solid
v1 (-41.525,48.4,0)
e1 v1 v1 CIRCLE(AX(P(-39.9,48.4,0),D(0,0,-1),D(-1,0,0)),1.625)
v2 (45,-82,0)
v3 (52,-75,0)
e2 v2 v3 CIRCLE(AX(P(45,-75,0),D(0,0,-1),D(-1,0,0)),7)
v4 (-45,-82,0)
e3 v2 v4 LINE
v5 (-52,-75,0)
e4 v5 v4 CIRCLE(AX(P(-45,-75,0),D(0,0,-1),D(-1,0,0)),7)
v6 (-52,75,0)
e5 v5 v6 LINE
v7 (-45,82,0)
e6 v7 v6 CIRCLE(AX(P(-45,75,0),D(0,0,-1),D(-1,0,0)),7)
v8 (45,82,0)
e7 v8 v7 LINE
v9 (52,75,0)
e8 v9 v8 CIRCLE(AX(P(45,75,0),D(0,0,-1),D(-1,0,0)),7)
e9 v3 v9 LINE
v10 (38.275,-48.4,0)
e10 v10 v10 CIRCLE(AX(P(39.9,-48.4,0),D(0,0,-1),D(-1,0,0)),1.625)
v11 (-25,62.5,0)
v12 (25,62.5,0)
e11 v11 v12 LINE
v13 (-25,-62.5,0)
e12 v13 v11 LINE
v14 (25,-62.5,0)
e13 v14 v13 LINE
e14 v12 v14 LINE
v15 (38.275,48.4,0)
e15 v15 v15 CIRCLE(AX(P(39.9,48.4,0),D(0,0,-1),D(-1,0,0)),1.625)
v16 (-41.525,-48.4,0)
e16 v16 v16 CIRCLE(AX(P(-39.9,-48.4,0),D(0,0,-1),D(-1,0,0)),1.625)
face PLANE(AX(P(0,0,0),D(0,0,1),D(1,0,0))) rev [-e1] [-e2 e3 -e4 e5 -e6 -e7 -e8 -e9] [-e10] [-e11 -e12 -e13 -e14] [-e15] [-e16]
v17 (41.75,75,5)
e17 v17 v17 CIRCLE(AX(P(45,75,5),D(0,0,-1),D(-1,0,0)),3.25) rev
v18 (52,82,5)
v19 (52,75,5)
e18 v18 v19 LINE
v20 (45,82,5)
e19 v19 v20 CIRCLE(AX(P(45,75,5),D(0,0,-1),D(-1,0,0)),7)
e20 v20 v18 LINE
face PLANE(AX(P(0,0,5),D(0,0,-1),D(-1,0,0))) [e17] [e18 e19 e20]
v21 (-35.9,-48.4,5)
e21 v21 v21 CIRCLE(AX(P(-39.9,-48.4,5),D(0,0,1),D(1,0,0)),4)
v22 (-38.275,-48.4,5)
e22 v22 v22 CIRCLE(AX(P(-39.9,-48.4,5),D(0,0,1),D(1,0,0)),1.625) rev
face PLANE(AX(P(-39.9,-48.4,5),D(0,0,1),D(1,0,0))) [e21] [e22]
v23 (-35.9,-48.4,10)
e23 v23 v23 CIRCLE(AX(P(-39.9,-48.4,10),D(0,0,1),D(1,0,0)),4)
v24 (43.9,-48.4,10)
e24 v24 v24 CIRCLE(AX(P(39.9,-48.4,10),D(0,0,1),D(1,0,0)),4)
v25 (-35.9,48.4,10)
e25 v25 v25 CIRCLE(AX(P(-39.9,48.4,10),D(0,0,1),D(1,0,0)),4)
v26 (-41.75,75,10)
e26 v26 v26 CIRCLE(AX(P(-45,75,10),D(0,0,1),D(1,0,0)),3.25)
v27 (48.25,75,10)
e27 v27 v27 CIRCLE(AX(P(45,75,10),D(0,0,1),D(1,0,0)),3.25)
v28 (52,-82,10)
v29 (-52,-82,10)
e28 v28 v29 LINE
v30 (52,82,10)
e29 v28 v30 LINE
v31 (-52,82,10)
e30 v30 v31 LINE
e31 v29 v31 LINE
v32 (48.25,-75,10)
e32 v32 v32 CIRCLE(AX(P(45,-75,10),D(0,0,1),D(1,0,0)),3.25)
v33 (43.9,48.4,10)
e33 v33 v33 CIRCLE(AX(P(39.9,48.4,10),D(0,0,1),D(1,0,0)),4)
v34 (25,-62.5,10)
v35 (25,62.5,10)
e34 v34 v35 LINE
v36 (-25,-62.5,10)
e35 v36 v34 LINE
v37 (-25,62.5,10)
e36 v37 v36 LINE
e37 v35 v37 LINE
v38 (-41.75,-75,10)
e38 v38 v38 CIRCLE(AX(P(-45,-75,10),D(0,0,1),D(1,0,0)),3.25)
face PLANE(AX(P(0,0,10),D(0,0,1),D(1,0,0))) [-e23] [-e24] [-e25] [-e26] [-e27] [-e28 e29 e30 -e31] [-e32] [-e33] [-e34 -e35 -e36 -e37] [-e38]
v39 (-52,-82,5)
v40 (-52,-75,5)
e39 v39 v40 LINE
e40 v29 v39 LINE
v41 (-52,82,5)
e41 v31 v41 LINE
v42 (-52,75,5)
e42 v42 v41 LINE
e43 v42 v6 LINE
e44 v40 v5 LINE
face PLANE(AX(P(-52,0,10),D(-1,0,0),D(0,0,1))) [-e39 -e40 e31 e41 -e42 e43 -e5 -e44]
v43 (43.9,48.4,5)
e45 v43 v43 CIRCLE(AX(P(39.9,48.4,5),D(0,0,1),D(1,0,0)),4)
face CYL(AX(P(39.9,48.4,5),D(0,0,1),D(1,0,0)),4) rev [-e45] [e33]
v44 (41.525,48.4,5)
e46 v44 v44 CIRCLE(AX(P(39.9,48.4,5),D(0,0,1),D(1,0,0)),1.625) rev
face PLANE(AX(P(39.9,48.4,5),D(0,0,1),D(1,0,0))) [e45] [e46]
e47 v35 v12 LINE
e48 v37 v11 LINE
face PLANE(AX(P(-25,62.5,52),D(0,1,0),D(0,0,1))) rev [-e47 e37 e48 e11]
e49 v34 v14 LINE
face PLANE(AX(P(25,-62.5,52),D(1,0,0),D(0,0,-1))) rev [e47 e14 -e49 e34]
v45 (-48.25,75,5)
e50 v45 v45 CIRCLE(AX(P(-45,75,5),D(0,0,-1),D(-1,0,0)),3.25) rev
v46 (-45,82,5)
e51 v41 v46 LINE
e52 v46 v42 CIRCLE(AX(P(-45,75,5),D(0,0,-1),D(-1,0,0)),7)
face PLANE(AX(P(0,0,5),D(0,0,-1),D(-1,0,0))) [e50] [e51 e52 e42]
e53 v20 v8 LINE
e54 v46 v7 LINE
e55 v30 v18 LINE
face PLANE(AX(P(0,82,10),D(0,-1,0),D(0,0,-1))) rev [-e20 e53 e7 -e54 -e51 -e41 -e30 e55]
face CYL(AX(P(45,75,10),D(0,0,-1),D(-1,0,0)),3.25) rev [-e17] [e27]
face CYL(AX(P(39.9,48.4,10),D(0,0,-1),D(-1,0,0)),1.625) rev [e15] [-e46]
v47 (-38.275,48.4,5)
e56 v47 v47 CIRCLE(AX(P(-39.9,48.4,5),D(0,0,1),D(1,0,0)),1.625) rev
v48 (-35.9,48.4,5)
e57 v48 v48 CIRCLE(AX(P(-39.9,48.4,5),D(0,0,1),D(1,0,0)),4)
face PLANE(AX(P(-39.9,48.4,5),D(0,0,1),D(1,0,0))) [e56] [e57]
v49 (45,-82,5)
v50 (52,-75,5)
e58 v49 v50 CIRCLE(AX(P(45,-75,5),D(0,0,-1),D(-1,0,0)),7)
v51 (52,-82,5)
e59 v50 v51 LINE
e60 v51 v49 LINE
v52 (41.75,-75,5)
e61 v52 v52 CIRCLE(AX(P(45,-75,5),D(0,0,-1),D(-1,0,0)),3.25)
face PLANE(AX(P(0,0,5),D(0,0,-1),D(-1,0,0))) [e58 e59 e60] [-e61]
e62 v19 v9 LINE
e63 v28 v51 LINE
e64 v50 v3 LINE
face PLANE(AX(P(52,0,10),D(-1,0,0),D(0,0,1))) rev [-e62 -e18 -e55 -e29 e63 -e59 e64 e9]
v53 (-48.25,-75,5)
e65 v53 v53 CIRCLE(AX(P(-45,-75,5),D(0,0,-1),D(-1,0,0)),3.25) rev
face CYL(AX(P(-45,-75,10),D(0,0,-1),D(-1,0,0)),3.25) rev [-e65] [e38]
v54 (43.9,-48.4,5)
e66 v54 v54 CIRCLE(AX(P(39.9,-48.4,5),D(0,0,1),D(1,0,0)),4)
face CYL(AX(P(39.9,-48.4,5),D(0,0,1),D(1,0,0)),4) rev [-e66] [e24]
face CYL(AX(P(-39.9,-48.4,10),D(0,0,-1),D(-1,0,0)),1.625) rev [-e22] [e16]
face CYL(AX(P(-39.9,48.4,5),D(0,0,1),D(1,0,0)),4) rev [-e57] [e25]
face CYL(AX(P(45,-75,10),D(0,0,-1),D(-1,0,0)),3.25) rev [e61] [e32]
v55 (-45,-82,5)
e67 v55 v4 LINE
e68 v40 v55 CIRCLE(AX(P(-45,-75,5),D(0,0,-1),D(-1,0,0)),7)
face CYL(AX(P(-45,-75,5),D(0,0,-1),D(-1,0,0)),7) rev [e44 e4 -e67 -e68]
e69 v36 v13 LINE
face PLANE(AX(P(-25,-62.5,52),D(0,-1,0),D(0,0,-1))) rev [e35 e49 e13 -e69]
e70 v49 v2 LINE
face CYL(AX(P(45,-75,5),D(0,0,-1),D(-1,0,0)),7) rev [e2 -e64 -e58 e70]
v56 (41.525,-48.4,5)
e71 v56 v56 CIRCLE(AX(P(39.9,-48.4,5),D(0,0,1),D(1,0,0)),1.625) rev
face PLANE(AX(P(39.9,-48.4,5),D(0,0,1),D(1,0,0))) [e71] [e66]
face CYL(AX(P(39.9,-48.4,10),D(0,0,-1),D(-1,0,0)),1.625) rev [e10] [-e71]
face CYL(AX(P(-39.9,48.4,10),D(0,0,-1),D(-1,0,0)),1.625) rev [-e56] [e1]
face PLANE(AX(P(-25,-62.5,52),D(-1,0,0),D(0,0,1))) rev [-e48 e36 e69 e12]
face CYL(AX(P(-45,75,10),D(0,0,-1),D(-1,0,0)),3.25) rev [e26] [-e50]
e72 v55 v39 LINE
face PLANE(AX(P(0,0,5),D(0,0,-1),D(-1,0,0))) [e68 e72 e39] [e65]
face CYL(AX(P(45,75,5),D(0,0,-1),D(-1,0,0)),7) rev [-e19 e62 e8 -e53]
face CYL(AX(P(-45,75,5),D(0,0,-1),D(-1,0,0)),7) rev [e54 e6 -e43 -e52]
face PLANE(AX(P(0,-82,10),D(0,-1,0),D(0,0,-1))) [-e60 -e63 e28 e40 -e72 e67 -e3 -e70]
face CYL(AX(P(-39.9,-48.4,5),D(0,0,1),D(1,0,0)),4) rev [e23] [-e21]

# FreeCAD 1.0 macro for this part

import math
import FreeCAD as App
import Part
import Sketcher


def add_polygon(sketch, points):
    """Adds a closed chain of lines whose ends are joined by coincident constraints."""
    first, n = sketch.GeometryCount, len(points)
    for a, b in zip(points, points[1:] + points[:1]):
        sketch.addGeometry(Part.LineSegment(App.Vector(*a, 0), App.Vector(*b, 0)), False)
    for i in range(n):
        sketch.addConstraint(Sketcher.Constraint("Coincident", first + i, 2, first + (i + 1) % n, 1))

doc = App.newDocument("Part")
body = doc.addObject("PartDesign::Body", "Body")

# Sketch on XY plane
sketch1 = body.newObject("Sketcher::SketchObject", "Sketch")
sketch1.AttachmentSupport = (doc.getObject("XY_Plane"), [""])
sketch1.MapMode = "FlatFace"
add_polygon(sketch1, [(-52, 82), (-52, -82), (52, -82), (52, 82)])  # lines 0-3
sketch1.addGeometry(Part.Circle(App.Vector(-45, -75, 0), App.Vector(0, 0, 1), 3.2), False)  # 4
sketch1.addGeometry(Part.Circle(App.Vector(45, -75, 0), App.Vector(0, 0, 1), 3.2), False)  # 5
sketch1.addGeometry(Part.Circle(App.Vector(-45, 75, 0), App.Vector(0, 0, 1), 3.2), False)  # 6
sketch1.addGeometry(Part.Circle(App.Vector(45, 75, 0), App.Vector(0, 0, 1), 3.2), False)  # 7
sketch1.addConstraint(Sketcher.Constraint("Vertical", 0))
sketch1.addConstraint(Sketcher.Constraint("Horizontal", 1))
sketch1.addConstraint(Sketcher.Constraint("Vertical", 2))
sketch1.addConstraint(Sketcher.Constraint("Horizontal", 3))
sketch1.addConstraint(Sketcher.Constraint("Equal", 4, 5))
sketch1.addConstraint(Sketcher.Constraint("Equal", 5, 6))
sketch1.addConstraint(Sketcher.Constraint("Equal", 6, 7))
sketch1.addConstraint(Sketcher.Constraint("Symmetric", 5, 3, 6, 3, -1, 1))
sketch1.addConstraint(Sketcher.Constraint("Symmetric", 4, 3, 7, 3, -1, 1))
sketch1.addConstraint(Sketcher.Constraint("Symmetric", 0, 2, 2, 2, -1, 1))
sketch1.addConstraint(Sketcher.Constraint("Symmetric", 4, 3, 5, 3, -2))
sketch1.addConstraint(Sketcher.Constraint("Diameter", 4, 6.5))
sketch1.addConstraint(Sketcher.Constraint("DistanceX", 1, 1, 1, 2, 104.0))
sketch1.addConstraint(Sketcher.Constraint("DistanceY", 0, 2, 0, 1, 164.0))
sketch1.addConstraint(Sketcher.Constraint("DistanceX", 4, 3, -1, 1, 45.0))
sketch1.addConstraint(Sketcher.Constraint("DistanceY", 4, 3, -1, 1, 75.0))
pad1 = body.newObject("PartDesign::Pad", "Pad")
pad1.Profile = sketch1
pad1.Length = 10

# Sketch on XY plane
sketch2 = body.newObject("Sketcher::SketchObject", "Sketch001")
sketch2.AttachmentSupport = (doc.getObject("XY_Plane"), [""])
sketch2.MapMode = "FlatFace"
sketch2.addGeometry(Part.Circle(App.Vector(39.9, 48.4, 0), App.Vector(0, 0, 1), 1.6), False)
sketch2.addGeometry(Part.Circle(App.Vector(-39.9, 48.4, 0), App.Vector(0, 0, 1), 1.6), False)
sketch2.addGeometry(Part.Circle(App.Vector(39.9, -48.4, 0), App.Vector(0, 0, 1), 1.6), False)
sketch2.addGeometry(Part.Circle(App.Vector(-39.9, -48.4, 0), App.Vector(0, 0, 1), 1.6), False)
sketch2.addConstraint(Sketcher.Constraint("Equal", 0, 1))
sketch2.addConstraint(Sketcher.Constraint("Equal", 1, 2))
sketch2.addConstraint(Sketcher.Constraint("Equal", 2, 3))
sketch2.addConstraint(Sketcher.Constraint("Symmetric", 1, 3, 2, 3, -1, 1))
sketch2.addConstraint(Sketcher.Constraint("Symmetric", 0, 3, 3, 3, -1, 1))
sketch2.addConstraint(Sketcher.Constraint("Symmetric", 0, 3, 1, 3, -2))
sketch2.addConstraint(Sketcher.Constraint("Diameter", 0, 3.25))
sketch2.addConstraint(Sketcher.Constraint("DistanceX", -1, 1, 0, 3, 39.9))
sketch2.addConstraint(Sketcher.Constraint("DistanceY", -1, 1, 0, 3, 48.4))
pocket1 = body.newObject("PartDesign::Pocket", "Pocket")
pocket1.Profile = sketch2
pocket1.Length = 10
pocket1.Reversed = True

# Sketch on XY plane
sketch3 = body.newObject("Sketcher::SketchObject", "Sketch002")
sketch3.AttachmentSupport = (doc.getObject("XY_Plane"), [""])
sketch3.MapMode = "FlatFace"
sketch3.AttachmentOffset = App.Placement(App.Vector(0, 0, 10), App.Rotation())
sketch3.addGeometry(Part.Circle(App.Vector(-39.9, 48.4, 0), App.Vector(0, 0, 1), 4), False)
sketch3.addGeometry(Part.Circle(App.Vector(39.9, 48.4, 0), App.Vector(0, 0, 1), 4), False)
sketch3.addGeometry(Part.Circle(App.Vector(-39.9, -48.4, 0), App.Vector(0, 0, 1), 4), False)
sketch3.addGeometry(Part.Circle(App.Vector(39.9, -48.4, 0), App.Vector(0, 0, 1), 4), False)
sketch3.addConstraint(Sketcher.Constraint("Equal", 0, 1))
sketch3.addConstraint(Sketcher.Constraint("Equal", 1, 2))
sketch3.addConstraint(Sketcher.Constraint("Equal", 2, 3))
sketch3.addConstraint(Sketcher.Constraint("Symmetric", 1, 3, 2, 3, -1, 1))
sketch3.addConstraint(Sketcher.Constraint("Symmetric", 0, 3, 3, 3, -1, 1))
sketch3.addConstraint(Sketcher.Constraint("Symmetric", 0, 3, 1, 3, -2))
sketch3.addConstraint(Sketcher.Constraint("Diameter", 0, 8.0))
sketch3.addConstraint(Sketcher.Constraint("DistanceX", 0, 3, -1, 1, 39.9))
sketch3.addConstraint(Sketcher.Constraint("DistanceY", -1, 1, 0, 3, 48.4))
pocket2 = body.newObject("PartDesign::Pocket", "Pocket001")
pocket2.Profile = sketch3
pocket2.Length = 5

# Sketch on XY plane
sketch4 = body.newObject("Sketcher::SketchObject", "Sketch003")
sketch4.AttachmentSupport = (doc.getObject("XY_Plane"), [""])
sketch4.MapMode = "FlatFace"
sketch4.addGeometry(Part.LineSegment(App.Vector(45, 82, 0), App.Vector(52, 82, 0)), False)
sketch4.addGeometry(Part.LineSegment(App.Vector(52, 82, 0), App.Vector(52, 75, 0)), False)
sketch4.addGeometry(Part.ArcOfCircle(Part.Circle(App.Vector(45, 75, 0), App.Vector(0, 0, 1), 7), math.radians(90), math.radians(360)), False)
sketch4.addGeometry(Part.Circle(App.Vector(45, 75, 0), App.Vector(0, 0, 1), 3.2), False)
sketch4.addGeometry(Part.ArcOfCircle(Part.Circle(App.Vector(-45, 75, 0), App.Vector(0, 0, 1), 7), math.radians(180), math.radians(450)), False)
sketch4.addGeometry(Part.LineSegment(App.Vector(-52, 75, 0), App.Vector(-52, 82, 0)), False)
sketch4.addGeometry(Part.LineSegment(App.Vector(-52, 82, 0), App.Vector(-45, 82, 0)), False)
sketch4.addGeometry(Part.Circle(App.Vector(-45, 75, 0), App.Vector(0, 0, 1), 3.2), False)
sketch4.addGeometry(Part.LineSegment(App.Vector(52, -75, 0), App.Vector(52, -82, 0)), False)
sketch4.addGeometry(Part.LineSegment(App.Vector(52, -82, 0), App.Vector(45, -82, 0)), False)
sketch4.addGeometry(Part.ArcOfCircle(Part.Circle(App.Vector(45, -75, 0), App.Vector(0, 0, 1), 7), math.radians(0), math.radians(270)), False)
sketch4.addGeometry(Part.Circle(App.Vector(45, -75, 0), App.Vector(0, 0, 1), 3.2), False)
sketch4.addGeometry(Part.ArcOfCircle(Part.Circle(App.Vector(-45, -75, 0), App.Vector(0, 0, 1), 7), math.radians(-90), math.radians(180)), False)
sketch4.addGeometry(Part.LineSegment(App.Vector(-45, -82, 0), App.Vector(-52, -82, 0)), False)
sketch4.addGeometry(Part.LineSegment(App.Vector(-52, -82, 0), App.Vector(-52, -75, 0)), False)
sketch4.addGeometry(Part.Circle(App.Vector(-45, -75, 0), App.Vector(0, 0, 1), 3.2), False)
sketch4.addConstraint(Sketcher.Constraint("Coincident", 0, 2, 1, 1))
sketch4.addConstraint(Sketcher.Constraint("Tangent", 1, 2, 2, 2))
sketch4.addConstraint(Sketcher.Constraint("Tangent", 2, 1, 0, 1))
sketch4.addConstraint(Sketcher.Constraint("Tangent", 4, 1, 5, 1))
sketch4.addConstraint(Sketcher.Constraint("Coincident", 5, 2, 6, 1))
sketch4.addConstraint(Sketcher.Constraint("Tangent", 6, 2, 4, 2))
sketch4.addConstraint(Sketcher.Constraint("Coincident", 8, 2, 9, 1))
sketch4.addConstraint(Sketcher.Constraint("Tangent", 9, 2, 10, 2))
sketch4.addConstraint(Sketcher.Constraint("Tangent", 10, 1, 8, 1))
sketch4.addConstraint(Sketcher.Constraint("Tangent", 12, 1, 13, 1))
sketch4.addConstraint(Sketcher.Constraint("Coincident", 13, 2, 14, 1))
sketch4.addConstraint(Sketcher.Constraint("Tangent", 14, 2, 12, 2))
sketch4.addConstraint(Sketcher.Constraint("Horizontal", 0))
sketch4.addConstraint(Sketcher.Constraint("Vertical", 1))
sketch4.addConstraint(Sketcher.Constraint("Vertical", 5))
sketch4.addConstraint(Sketcher.Constraint("Horizontal", 6))
sketch4.addConstraint(Sketcher.Constraint("Vertical", 8))
sketch4.addConstraint(Sketcher.Constraint("Horizontal", 9))
sketch4.addConstraint(Sketcher.Constraint("Horizontal", 13))
sketch4.addConstraint(Sketcher.Constraint("Vertical", 14))
sketch4.addConstraint(Sketcher.Constraint("Coincident", 3, 3, 2, 3))
sketch4.addConstraint(Sketcher.Constraint("Coincident", 7, 3, 4, 3))
sketch4.addConstraint(Sketcher.Constraint("Coincident", 11, 3, 10, 3))
sketch4.addConstraint(Sketcher.Constraint("Coincident", 15, 3, 12, 3))
sketch4.addConstraint(Sketcher.Constraint("Equal", 2, 4))
sketch4.addConstraint(Sketcher.Constraint("Equal", 3, 7))
sketch4.addConstraint(Sketcher.Constraint("Equal", 4, 10))
sketch4.addConstraint(Sketcher.Constraint("Equal", 7, 11))
sketch4.addConstraint(Sketcher.Constraint("Equal", 10, 12))
sketch4.addConstraint(Sketcher.Constraint("Equal", 11, 15))
sketch4.addConstraint(Sketcher.Constraint("Symmetric", 4, 3, 10, 3, -1, 1))
sketch4.addConstraint(Sketcher.Constraint("Symmetric", 2, 3, 12, 3, -1, 1))
sketch4.addConstraint(Sketcher.Constraint("Symmetric", 2, 3, 4, 3, -2))
sketch4.addConstraint(Sketcher.Constraint("Radius", 2, 7.0))
sketch4.addConstraint(Sketcher.Constraint("Diameter", 3, 6.5))
sketch4.addConstraint(Sketcher.Constraint("DistanceX", -1, 1, 2, 3, 45.0))
sketch4.addConstraint(Sketcher.Constraint("DistanceY", -1, 1, 2, 3, 75.0))
pocket3 = body.newObject("PartDesign::Pocket", "Pocket002")
pocket3.Profile = sketch4
pocket3.Length = 5
pocket3.Reversed = True

# Sketch on XY plane
sketch5 = body.newObject("Sketcher::SketchObject", "Sketch004")
sketch5.AttachmentSupport = (doc.getObject("XY_Plane"), [""])
sketch5.MapMode = "FlatFace"
add_polygon(sketch5, [(25, 62), (25, -62), (-25, -62), (-25, 62)])  # lines 0-3
sketch5.addConstraint(Sketcher.Constraint("Vertical", 0))
sketch5.addConstraint(Sketcher.Constraint("Horizontal", 1))
sketch5.addConstraint(Sketcher.Constraint("Vertical", 2))
sketch5.addConstraint(Sketcher.Constraint("Horizontal", 3))
sketch5.addConstraint(Sketcher.Constraint("Symmetric", 0, 2, 2, 2, -1, 1))
sketch5.addConstraint(Sketcher.Constraint("DistanceX", 1, 2, 1, 1, 50.0))
sketch5.addConstraint(Sketcher.Constraint("DistanceY", 0, 2, 0, 1, 125.0))
pocket4 = body.newObject("PartDesign::Pocket", "Pocket003")
pocket4.Profile = sketch5
pocket4.Length = 52
pocket4.Reversed = True

doc.recompute()
